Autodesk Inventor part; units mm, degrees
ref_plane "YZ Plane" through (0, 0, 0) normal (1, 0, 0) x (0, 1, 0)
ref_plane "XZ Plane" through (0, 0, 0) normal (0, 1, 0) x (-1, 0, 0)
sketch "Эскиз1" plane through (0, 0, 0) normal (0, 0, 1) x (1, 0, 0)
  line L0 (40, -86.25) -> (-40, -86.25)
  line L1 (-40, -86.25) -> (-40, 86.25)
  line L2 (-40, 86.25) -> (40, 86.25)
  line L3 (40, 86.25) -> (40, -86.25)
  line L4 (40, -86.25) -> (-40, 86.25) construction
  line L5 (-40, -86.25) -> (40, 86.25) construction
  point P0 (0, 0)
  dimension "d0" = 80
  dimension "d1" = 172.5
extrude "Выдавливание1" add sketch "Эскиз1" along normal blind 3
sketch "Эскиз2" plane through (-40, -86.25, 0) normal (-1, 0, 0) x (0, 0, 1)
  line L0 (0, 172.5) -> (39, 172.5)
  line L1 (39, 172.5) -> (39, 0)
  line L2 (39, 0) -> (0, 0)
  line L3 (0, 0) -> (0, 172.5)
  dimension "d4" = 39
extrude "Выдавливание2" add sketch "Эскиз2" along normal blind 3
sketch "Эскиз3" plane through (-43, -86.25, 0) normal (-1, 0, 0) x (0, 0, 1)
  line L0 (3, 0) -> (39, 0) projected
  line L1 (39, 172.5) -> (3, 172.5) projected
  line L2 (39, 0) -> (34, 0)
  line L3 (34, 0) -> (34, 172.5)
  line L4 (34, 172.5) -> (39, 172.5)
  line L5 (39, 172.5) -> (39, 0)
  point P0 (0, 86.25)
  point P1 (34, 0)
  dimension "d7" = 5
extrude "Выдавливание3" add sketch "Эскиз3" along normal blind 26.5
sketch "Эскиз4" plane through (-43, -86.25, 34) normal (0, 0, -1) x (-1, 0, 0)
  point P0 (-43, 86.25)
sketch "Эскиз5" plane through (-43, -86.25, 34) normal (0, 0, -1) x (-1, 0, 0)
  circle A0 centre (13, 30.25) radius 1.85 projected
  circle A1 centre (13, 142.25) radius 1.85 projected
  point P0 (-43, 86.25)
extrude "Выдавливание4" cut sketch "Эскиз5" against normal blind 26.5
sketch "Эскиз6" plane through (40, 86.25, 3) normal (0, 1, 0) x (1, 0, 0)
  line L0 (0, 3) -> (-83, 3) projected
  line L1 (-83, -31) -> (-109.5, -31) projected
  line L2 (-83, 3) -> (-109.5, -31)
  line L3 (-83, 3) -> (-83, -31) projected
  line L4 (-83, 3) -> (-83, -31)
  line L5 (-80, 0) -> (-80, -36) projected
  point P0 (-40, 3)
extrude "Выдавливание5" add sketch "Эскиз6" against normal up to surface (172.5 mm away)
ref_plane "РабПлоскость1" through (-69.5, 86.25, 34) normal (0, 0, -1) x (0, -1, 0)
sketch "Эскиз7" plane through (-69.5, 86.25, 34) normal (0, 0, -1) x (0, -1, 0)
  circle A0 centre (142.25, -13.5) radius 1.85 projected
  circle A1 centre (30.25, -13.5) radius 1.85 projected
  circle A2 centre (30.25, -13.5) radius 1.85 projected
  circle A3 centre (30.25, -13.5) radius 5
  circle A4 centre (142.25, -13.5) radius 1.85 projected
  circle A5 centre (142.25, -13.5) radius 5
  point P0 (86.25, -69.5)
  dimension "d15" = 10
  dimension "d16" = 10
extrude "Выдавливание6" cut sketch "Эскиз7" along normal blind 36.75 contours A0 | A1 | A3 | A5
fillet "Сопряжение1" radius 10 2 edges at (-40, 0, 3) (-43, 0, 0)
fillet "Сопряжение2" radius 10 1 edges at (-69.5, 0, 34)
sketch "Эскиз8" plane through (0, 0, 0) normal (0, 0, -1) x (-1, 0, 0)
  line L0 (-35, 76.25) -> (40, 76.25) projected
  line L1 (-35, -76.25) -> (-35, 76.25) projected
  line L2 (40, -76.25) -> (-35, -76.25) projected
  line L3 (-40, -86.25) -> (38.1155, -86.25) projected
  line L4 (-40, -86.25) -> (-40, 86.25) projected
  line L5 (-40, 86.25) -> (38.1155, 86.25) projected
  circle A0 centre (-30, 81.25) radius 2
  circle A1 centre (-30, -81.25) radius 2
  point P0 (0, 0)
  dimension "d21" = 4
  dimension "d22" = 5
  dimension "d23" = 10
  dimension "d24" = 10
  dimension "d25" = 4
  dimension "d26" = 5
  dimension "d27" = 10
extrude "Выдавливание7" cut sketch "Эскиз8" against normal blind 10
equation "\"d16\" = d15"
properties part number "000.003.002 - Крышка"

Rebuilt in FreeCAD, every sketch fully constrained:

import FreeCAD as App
import Part
import Sketcher

V = App.Vector
Q = App.Units.Quantity


def edges_at(feature, points):
    """Names of the edges that pass closest to the given points."""
    edges = feature.Shape.Edges
    near = lambda p: min(range(len(edges)), key=lambda i: edges[i].distToShape(Part.Vertex(*p))[0])
    return sorted({f"Edge{near(p) + 1}" for p in points})

doc = App.newDocument("Part")
body = doc.addObject("PartDesign::Body", "Body")

# Sketch on XY plane
sketch1 = doc.addObject("Sketcher::SketchObject", "Sketch")
body.addObject(sketch1)
sketch1.AttachmentSupport = (doc.XY_Plane, [""])
sketch1.MapMode = "FlatFace"
sketch1.addGeometry([
    Part.LineSegment(V(-40, -86, 0), V(40, -86, 0)),
    Part.LineSegment(V(40, -86, 0), V(40, 86, 0)),
    Part.LineSegment(V(40, 86, 0), V(-40, 86, 0)),
    Part.LineSegment(V(-40, 86, 0), V(-40, -86, 0)),
], False)
sketch1.addConstraint([
    Sketcher.Constraint("Coincident", 0, 2, 1, 1),
    Sketcher.Constraint("Coincident", 1, 2, 2, 1),
    Sketcher.Constraint("Coincident", 2, 2, 3, 1),
    Sketcher.Constraint("Coincident", 3, 2, 0, 1),
    Sketcher.Constraint("Horizontal", 0),
    Sketcher.Constraint("Vertical", 1),
    Sketcher.Constraint("Horizontal", 2),
    Sketcher.Constraint("Vertical", 3),
    Sketcher.Constraint("Symmetric", 0, 2, 2, 2, -1, 1),
    Sketcher.Constraint("DistanceX", 0, 1, 0, 2, Q("80 mm")),
    Sketcher.Constraint("DistanceY", 1, 1, 1, 2, Q("172.5 mm")),
])
pad1 = doc.addObject("PartDesign::Pad", "Pad")
body.addObject(pad1)
pad1.Profile = sketch1
pad1.Length = 3

# Sketch on YZ plane
sketch2 = doc.addObject("Sketcher::SketchObject", "Sketch001")
body.addObject(sketch2)
sketch2.AttachmentSupport = (doc.YZ_Plane, [""])
sketch2.MapMode = "FlatFace"
sketch2.AttachmentOffset = App.Placement(V(0, 0, -40), App.Rotation())
sketch2.addGeometry([
    Part.LineSegment(V(86, 39, 0), V(86, 0, 0)),
    Part.LineSegment(V(86, 0, 0), V(-86, 0, 0)),
    Part.LineSegment(V(-86, 0, 0), V(-86, 39, 0)),
    Part.LineSegment(V(-86, 39, 0), V(86, 39, 0)),
], False)
sketch2.addConstraint([
    Sketcher.Constraint("Coincident", 0, 2, 1, 1),
    Sketcher.Constraint("Coincident", 1, 2, 2, 1),
    Sketcher.Constraint("Coincident", 2, 2, 3, 1),
    Sketcher.Constraint("Coincident", 3, 2, 0, 1),
    Sketcher.Constraint("Vertical", 0),
    Sketcher.Constraint("Horizontal", 1),
    Sketcher.Constraint("Vertical", 2),
    Sketcher.Constraint("Horizontal", 3),
    Sketcher.Constraint("Symmetric", 0, 2, 1, 2, -1, 1),
    Sketcher.Constraint("DistanceY", 0, 2, 0, 1, Q("39 mm")),
    Sketcher.Constraint("DistanceX", 1, 2, 1, 1, Q("172.5 mm")),
])
pad2 = doc.addObject("PartDesign::Pad", "Pad001")
body.addObject(pad2)
pad2.Profile = sketch2
pad2.Length = 3
pad2.Reversed = True

# Sketch on YZ plane
sketch3 = doc.addObject("Sketcher::SketchObject", "Sketch002")
body.addObject(sketch3)
sketch3.AttachmentSupport = (doc.YZ_Plane, [""])
sketch3.MapMode = "FlatFace"
sketch3.AttachmentOffset = App.Placement(V(0, 0, -43), App.Rotation())
sketch3.addGeometry([
    Part.LineSegment(V(86, 34, 0), V(-86, 34, 0)),
    Part.LineSegment(V(-86, 34, 0), V(-86, 39, 0)),
    Part.LineSegment(V(-86, 39, 0), V(86, 39, 0)),
    Part.LineSegment(V(86, 39, 0), V(86, 34, 0)),
], False)
sketch3.addConstraint([
    Sketcher.Constraint("Coincident", 0, 2, 1, 1),
    Sketcher.Constraint("Coincident", 1, 2, 2, 1),
    Sketcher.Constraint("Coincident", 2, 2, 3, 1),
    Sketcher.Constraint("Coincident", 3, 2, 0, 1),
    Sketcher.Constraint("Horizontal", 0),
    Sketcher.Constraint("Vertical", 1),
    Sketcher.Constraint("Horizontal", 2),
    Sketcher.Constraint("Vertical", 3),
    Sketcher.Constraint("DistanceY", 1, 1, 1, 2, Q("5 mm")),
    Sketcher.Constraint("DistanceX", 0, 2, 0, 1, Q("172.5 mm")),
    Sketcher.Constraint("DistanceY", -1, 1, 0, 2, Q("34 mm")),
    Sketcher.Constraint("DistanceX", 0, 2, -1, 1, Q("86.25 mm")),
])
pad3 = doc.addObject("PartDesign::Pad", "Pad002")
body.addObject(pad3)
pad3.Profile = sketch3
pad3.Length = 26.5
pad3.Reversed = True

# Sketch on XY plane
sketch4 = doc.addObject("Sketcher::SketchObject", "Sketch003")
body.addObject(sketch4)
sketch4.AttachmentSupport = (doc.XY_Plane, [""])
sketch4.MapMode = "FlatFace"
sketch4.AttachmentOffset = App.Placement(V(0, 0, 34), App.Rotation())
sketch4.addGeometry([
    Part.Circle(V(-56, -56, 0), V(0, 0, 1), 1.9),
    Part.Circle(V(-56, 56, 0), V(0, 0, 1), 1.9),
], False)
sketch4.addConstraint([
    Sketcher.Constraint("Equal", 0, 1),
    Sketcher.Constraint("Symmetric", 0, 3, 1, 3, -1),
    Sketcher.Constraint("Diameter", 0, Q("3.7 mm")),
    Sketcher.Constraint("DistanceX", 0, 3, -1, 1, Q("56 mm")),
    Sketcher.Constraint("DistanceY", 0, 3, -1, 1, Q("56 mm")),
])
pocket1 = doc.addObject("PartDesign::Pocket", "Pocket")
body.addObject(pocket1)
pocket1.Profile = sketch4
pocket1.Length = 26.5
pocket1.Reversed = True

# Sketch on XZ plane
sketch5 = doc.addObject("Sketcher::SketchObject", "Sketch004")
body.addObject(sketch5)
sketch5.AttachmentSupport = (doc.XZ_Plane, [""])
sketch5.MapMode = "FlatFace"
sketch5.AttachmentOffset = App.Placement(V(0, 0, -86.25), App.Rotation())
sketch5.addGeometry([
    Part.LineSegment(V(-70, 34, 0), V(-43, 34, 0)),
    Part.LineSegment(V(-43, 34, 0), V(-43, 0, 0)),
    Part.LineSegment(V(-43, 0, 0), V(-70, 34, 0)),
], False)
sketch5.addConstraint([
    Sketcher.Constraint("Coincident", 0, 2, 1, 1),
    Sketcher.Constraint("Coincident", 1, 2, 2, 1),
    Sketcher.Constraint("Coincident", 2, 2, 0, 1),
    Sketcher.Constraint("Horizontal", 0),
    Sketcher.Constraint("Vertical", 1),
    Sketcher.Constraint("PointOnObject", 1, 2, -1),
    Sketcher.Constraint("DistanceY", 1, 2, 1, 1, Q("34 mm")),
    Sketcher.Constraint("DistanceX", 0, 1, 0, 2, Q("26.5 mm")),
    Sketcher.Constraint("DistanceX", 0, 2, -1, 1, Q("43 mm")),
])
pad4 = doc.addObject("PartDesign::Pad", "Pad003")
body.addObject(pad4)
pad4.Profile = sketch5
pad4.Length = 172.5

# Sketch on XY plane
sketch6 = doc.addObject("Sketcher::SketchObject", "Sketch005")
body.addObject(sketch6)
sketch6.AttachmentSupport = (doc.XY_Plane, [""])
sketch6.MapMode = "FlatFace"
sketch6.AttachmentOffset = App.Placement(V(0, 0, 34), App.Rotation())
sketch6.addGeometry([
    Part.Circle(V(-56, -56, 0), V(0, 0, 1), 5),
    Part.Circle(V(-56, 56, 0), V(0, 0, 1), 5),
], False)
sketch6.addConstraint([
    Sketcher.Constraint("Equal", 0, 1),
    Sketcher.Constraint("Symmetric", 0, 3, 1, 3, -1),
    Sketcher.Constraint("Diameter", 0, Q("10 mm")),
    Sketcher.Constraint("DistanceX", 0, 3, -1, 1, Q("56 mm")),
    Sketcher.Constraint("DistanceY", 0, 3, -1, 1, Q("56 mm")),
])
pocket2 = doc.addObject("PartDesign::Pocket", "Pocket001")
body.addObject(pocket2)
pocket2.Profile = sketch6
pocket2.Length = 36.75
doc.recompute()

fillet = doc.addObject("PartDesign::Fillet", "Fillet")
body.addObject(fillet)
fillet.Base = (pocket2, edges_at(pocket2, [(-40, 0, 3), (-43, 0, 0)]))
fillet.Radius = 10
doc.recompute()

fillet2 = doc.addObject("PartDesign::Fillet", "Fillet001")
body.addObject(fillet2)
fillet2.Base = (fillet, edges_at(fillet, [(-69.5, 0, 34)]))
fillet2.Radius = 10

# Sketch on XY plane
sketch7 = doc.addObject("Sketcher::SketchObject", "Sketch006")
body.addObject(sketch7)
sketch7.AttachmentSupport = (doc.XY_Plane, [""])
sketch7.MapMode = "FlatFace"
sketch7.addGeometry([
    Part.Circle(V(30, 81.2, 0), V(0, 0, 1), 2),
    Part.Circle(V(30, -81.2, 0), V(0, 0, 1), 2),
], False)
sketch7.addConstraint([
    Sketcher.Constraint("Equal", 0, 1),
    Sketcher.Constraint("Symmetric", 0, 3, 1, 3, -1),
    Sketcher.Constraint("Diameter", 0, Q("4 mm")),
    Sketcher.Constraint("DistanceX", -1, 1, 0, 3, Q("30 mm")),
    Sketcher.Constraint("DistanceY", 1, 3, 0, 3, Q("162.5 mm")),
])
pocket3 = doc.addObject("PartDesign::Pocket", "Pocket002")
body.addObject(pocket3)
pocket3.Profile = sketch7
pocket3.Length = 10
pocket3.Reversed = True

doc.recompute()
